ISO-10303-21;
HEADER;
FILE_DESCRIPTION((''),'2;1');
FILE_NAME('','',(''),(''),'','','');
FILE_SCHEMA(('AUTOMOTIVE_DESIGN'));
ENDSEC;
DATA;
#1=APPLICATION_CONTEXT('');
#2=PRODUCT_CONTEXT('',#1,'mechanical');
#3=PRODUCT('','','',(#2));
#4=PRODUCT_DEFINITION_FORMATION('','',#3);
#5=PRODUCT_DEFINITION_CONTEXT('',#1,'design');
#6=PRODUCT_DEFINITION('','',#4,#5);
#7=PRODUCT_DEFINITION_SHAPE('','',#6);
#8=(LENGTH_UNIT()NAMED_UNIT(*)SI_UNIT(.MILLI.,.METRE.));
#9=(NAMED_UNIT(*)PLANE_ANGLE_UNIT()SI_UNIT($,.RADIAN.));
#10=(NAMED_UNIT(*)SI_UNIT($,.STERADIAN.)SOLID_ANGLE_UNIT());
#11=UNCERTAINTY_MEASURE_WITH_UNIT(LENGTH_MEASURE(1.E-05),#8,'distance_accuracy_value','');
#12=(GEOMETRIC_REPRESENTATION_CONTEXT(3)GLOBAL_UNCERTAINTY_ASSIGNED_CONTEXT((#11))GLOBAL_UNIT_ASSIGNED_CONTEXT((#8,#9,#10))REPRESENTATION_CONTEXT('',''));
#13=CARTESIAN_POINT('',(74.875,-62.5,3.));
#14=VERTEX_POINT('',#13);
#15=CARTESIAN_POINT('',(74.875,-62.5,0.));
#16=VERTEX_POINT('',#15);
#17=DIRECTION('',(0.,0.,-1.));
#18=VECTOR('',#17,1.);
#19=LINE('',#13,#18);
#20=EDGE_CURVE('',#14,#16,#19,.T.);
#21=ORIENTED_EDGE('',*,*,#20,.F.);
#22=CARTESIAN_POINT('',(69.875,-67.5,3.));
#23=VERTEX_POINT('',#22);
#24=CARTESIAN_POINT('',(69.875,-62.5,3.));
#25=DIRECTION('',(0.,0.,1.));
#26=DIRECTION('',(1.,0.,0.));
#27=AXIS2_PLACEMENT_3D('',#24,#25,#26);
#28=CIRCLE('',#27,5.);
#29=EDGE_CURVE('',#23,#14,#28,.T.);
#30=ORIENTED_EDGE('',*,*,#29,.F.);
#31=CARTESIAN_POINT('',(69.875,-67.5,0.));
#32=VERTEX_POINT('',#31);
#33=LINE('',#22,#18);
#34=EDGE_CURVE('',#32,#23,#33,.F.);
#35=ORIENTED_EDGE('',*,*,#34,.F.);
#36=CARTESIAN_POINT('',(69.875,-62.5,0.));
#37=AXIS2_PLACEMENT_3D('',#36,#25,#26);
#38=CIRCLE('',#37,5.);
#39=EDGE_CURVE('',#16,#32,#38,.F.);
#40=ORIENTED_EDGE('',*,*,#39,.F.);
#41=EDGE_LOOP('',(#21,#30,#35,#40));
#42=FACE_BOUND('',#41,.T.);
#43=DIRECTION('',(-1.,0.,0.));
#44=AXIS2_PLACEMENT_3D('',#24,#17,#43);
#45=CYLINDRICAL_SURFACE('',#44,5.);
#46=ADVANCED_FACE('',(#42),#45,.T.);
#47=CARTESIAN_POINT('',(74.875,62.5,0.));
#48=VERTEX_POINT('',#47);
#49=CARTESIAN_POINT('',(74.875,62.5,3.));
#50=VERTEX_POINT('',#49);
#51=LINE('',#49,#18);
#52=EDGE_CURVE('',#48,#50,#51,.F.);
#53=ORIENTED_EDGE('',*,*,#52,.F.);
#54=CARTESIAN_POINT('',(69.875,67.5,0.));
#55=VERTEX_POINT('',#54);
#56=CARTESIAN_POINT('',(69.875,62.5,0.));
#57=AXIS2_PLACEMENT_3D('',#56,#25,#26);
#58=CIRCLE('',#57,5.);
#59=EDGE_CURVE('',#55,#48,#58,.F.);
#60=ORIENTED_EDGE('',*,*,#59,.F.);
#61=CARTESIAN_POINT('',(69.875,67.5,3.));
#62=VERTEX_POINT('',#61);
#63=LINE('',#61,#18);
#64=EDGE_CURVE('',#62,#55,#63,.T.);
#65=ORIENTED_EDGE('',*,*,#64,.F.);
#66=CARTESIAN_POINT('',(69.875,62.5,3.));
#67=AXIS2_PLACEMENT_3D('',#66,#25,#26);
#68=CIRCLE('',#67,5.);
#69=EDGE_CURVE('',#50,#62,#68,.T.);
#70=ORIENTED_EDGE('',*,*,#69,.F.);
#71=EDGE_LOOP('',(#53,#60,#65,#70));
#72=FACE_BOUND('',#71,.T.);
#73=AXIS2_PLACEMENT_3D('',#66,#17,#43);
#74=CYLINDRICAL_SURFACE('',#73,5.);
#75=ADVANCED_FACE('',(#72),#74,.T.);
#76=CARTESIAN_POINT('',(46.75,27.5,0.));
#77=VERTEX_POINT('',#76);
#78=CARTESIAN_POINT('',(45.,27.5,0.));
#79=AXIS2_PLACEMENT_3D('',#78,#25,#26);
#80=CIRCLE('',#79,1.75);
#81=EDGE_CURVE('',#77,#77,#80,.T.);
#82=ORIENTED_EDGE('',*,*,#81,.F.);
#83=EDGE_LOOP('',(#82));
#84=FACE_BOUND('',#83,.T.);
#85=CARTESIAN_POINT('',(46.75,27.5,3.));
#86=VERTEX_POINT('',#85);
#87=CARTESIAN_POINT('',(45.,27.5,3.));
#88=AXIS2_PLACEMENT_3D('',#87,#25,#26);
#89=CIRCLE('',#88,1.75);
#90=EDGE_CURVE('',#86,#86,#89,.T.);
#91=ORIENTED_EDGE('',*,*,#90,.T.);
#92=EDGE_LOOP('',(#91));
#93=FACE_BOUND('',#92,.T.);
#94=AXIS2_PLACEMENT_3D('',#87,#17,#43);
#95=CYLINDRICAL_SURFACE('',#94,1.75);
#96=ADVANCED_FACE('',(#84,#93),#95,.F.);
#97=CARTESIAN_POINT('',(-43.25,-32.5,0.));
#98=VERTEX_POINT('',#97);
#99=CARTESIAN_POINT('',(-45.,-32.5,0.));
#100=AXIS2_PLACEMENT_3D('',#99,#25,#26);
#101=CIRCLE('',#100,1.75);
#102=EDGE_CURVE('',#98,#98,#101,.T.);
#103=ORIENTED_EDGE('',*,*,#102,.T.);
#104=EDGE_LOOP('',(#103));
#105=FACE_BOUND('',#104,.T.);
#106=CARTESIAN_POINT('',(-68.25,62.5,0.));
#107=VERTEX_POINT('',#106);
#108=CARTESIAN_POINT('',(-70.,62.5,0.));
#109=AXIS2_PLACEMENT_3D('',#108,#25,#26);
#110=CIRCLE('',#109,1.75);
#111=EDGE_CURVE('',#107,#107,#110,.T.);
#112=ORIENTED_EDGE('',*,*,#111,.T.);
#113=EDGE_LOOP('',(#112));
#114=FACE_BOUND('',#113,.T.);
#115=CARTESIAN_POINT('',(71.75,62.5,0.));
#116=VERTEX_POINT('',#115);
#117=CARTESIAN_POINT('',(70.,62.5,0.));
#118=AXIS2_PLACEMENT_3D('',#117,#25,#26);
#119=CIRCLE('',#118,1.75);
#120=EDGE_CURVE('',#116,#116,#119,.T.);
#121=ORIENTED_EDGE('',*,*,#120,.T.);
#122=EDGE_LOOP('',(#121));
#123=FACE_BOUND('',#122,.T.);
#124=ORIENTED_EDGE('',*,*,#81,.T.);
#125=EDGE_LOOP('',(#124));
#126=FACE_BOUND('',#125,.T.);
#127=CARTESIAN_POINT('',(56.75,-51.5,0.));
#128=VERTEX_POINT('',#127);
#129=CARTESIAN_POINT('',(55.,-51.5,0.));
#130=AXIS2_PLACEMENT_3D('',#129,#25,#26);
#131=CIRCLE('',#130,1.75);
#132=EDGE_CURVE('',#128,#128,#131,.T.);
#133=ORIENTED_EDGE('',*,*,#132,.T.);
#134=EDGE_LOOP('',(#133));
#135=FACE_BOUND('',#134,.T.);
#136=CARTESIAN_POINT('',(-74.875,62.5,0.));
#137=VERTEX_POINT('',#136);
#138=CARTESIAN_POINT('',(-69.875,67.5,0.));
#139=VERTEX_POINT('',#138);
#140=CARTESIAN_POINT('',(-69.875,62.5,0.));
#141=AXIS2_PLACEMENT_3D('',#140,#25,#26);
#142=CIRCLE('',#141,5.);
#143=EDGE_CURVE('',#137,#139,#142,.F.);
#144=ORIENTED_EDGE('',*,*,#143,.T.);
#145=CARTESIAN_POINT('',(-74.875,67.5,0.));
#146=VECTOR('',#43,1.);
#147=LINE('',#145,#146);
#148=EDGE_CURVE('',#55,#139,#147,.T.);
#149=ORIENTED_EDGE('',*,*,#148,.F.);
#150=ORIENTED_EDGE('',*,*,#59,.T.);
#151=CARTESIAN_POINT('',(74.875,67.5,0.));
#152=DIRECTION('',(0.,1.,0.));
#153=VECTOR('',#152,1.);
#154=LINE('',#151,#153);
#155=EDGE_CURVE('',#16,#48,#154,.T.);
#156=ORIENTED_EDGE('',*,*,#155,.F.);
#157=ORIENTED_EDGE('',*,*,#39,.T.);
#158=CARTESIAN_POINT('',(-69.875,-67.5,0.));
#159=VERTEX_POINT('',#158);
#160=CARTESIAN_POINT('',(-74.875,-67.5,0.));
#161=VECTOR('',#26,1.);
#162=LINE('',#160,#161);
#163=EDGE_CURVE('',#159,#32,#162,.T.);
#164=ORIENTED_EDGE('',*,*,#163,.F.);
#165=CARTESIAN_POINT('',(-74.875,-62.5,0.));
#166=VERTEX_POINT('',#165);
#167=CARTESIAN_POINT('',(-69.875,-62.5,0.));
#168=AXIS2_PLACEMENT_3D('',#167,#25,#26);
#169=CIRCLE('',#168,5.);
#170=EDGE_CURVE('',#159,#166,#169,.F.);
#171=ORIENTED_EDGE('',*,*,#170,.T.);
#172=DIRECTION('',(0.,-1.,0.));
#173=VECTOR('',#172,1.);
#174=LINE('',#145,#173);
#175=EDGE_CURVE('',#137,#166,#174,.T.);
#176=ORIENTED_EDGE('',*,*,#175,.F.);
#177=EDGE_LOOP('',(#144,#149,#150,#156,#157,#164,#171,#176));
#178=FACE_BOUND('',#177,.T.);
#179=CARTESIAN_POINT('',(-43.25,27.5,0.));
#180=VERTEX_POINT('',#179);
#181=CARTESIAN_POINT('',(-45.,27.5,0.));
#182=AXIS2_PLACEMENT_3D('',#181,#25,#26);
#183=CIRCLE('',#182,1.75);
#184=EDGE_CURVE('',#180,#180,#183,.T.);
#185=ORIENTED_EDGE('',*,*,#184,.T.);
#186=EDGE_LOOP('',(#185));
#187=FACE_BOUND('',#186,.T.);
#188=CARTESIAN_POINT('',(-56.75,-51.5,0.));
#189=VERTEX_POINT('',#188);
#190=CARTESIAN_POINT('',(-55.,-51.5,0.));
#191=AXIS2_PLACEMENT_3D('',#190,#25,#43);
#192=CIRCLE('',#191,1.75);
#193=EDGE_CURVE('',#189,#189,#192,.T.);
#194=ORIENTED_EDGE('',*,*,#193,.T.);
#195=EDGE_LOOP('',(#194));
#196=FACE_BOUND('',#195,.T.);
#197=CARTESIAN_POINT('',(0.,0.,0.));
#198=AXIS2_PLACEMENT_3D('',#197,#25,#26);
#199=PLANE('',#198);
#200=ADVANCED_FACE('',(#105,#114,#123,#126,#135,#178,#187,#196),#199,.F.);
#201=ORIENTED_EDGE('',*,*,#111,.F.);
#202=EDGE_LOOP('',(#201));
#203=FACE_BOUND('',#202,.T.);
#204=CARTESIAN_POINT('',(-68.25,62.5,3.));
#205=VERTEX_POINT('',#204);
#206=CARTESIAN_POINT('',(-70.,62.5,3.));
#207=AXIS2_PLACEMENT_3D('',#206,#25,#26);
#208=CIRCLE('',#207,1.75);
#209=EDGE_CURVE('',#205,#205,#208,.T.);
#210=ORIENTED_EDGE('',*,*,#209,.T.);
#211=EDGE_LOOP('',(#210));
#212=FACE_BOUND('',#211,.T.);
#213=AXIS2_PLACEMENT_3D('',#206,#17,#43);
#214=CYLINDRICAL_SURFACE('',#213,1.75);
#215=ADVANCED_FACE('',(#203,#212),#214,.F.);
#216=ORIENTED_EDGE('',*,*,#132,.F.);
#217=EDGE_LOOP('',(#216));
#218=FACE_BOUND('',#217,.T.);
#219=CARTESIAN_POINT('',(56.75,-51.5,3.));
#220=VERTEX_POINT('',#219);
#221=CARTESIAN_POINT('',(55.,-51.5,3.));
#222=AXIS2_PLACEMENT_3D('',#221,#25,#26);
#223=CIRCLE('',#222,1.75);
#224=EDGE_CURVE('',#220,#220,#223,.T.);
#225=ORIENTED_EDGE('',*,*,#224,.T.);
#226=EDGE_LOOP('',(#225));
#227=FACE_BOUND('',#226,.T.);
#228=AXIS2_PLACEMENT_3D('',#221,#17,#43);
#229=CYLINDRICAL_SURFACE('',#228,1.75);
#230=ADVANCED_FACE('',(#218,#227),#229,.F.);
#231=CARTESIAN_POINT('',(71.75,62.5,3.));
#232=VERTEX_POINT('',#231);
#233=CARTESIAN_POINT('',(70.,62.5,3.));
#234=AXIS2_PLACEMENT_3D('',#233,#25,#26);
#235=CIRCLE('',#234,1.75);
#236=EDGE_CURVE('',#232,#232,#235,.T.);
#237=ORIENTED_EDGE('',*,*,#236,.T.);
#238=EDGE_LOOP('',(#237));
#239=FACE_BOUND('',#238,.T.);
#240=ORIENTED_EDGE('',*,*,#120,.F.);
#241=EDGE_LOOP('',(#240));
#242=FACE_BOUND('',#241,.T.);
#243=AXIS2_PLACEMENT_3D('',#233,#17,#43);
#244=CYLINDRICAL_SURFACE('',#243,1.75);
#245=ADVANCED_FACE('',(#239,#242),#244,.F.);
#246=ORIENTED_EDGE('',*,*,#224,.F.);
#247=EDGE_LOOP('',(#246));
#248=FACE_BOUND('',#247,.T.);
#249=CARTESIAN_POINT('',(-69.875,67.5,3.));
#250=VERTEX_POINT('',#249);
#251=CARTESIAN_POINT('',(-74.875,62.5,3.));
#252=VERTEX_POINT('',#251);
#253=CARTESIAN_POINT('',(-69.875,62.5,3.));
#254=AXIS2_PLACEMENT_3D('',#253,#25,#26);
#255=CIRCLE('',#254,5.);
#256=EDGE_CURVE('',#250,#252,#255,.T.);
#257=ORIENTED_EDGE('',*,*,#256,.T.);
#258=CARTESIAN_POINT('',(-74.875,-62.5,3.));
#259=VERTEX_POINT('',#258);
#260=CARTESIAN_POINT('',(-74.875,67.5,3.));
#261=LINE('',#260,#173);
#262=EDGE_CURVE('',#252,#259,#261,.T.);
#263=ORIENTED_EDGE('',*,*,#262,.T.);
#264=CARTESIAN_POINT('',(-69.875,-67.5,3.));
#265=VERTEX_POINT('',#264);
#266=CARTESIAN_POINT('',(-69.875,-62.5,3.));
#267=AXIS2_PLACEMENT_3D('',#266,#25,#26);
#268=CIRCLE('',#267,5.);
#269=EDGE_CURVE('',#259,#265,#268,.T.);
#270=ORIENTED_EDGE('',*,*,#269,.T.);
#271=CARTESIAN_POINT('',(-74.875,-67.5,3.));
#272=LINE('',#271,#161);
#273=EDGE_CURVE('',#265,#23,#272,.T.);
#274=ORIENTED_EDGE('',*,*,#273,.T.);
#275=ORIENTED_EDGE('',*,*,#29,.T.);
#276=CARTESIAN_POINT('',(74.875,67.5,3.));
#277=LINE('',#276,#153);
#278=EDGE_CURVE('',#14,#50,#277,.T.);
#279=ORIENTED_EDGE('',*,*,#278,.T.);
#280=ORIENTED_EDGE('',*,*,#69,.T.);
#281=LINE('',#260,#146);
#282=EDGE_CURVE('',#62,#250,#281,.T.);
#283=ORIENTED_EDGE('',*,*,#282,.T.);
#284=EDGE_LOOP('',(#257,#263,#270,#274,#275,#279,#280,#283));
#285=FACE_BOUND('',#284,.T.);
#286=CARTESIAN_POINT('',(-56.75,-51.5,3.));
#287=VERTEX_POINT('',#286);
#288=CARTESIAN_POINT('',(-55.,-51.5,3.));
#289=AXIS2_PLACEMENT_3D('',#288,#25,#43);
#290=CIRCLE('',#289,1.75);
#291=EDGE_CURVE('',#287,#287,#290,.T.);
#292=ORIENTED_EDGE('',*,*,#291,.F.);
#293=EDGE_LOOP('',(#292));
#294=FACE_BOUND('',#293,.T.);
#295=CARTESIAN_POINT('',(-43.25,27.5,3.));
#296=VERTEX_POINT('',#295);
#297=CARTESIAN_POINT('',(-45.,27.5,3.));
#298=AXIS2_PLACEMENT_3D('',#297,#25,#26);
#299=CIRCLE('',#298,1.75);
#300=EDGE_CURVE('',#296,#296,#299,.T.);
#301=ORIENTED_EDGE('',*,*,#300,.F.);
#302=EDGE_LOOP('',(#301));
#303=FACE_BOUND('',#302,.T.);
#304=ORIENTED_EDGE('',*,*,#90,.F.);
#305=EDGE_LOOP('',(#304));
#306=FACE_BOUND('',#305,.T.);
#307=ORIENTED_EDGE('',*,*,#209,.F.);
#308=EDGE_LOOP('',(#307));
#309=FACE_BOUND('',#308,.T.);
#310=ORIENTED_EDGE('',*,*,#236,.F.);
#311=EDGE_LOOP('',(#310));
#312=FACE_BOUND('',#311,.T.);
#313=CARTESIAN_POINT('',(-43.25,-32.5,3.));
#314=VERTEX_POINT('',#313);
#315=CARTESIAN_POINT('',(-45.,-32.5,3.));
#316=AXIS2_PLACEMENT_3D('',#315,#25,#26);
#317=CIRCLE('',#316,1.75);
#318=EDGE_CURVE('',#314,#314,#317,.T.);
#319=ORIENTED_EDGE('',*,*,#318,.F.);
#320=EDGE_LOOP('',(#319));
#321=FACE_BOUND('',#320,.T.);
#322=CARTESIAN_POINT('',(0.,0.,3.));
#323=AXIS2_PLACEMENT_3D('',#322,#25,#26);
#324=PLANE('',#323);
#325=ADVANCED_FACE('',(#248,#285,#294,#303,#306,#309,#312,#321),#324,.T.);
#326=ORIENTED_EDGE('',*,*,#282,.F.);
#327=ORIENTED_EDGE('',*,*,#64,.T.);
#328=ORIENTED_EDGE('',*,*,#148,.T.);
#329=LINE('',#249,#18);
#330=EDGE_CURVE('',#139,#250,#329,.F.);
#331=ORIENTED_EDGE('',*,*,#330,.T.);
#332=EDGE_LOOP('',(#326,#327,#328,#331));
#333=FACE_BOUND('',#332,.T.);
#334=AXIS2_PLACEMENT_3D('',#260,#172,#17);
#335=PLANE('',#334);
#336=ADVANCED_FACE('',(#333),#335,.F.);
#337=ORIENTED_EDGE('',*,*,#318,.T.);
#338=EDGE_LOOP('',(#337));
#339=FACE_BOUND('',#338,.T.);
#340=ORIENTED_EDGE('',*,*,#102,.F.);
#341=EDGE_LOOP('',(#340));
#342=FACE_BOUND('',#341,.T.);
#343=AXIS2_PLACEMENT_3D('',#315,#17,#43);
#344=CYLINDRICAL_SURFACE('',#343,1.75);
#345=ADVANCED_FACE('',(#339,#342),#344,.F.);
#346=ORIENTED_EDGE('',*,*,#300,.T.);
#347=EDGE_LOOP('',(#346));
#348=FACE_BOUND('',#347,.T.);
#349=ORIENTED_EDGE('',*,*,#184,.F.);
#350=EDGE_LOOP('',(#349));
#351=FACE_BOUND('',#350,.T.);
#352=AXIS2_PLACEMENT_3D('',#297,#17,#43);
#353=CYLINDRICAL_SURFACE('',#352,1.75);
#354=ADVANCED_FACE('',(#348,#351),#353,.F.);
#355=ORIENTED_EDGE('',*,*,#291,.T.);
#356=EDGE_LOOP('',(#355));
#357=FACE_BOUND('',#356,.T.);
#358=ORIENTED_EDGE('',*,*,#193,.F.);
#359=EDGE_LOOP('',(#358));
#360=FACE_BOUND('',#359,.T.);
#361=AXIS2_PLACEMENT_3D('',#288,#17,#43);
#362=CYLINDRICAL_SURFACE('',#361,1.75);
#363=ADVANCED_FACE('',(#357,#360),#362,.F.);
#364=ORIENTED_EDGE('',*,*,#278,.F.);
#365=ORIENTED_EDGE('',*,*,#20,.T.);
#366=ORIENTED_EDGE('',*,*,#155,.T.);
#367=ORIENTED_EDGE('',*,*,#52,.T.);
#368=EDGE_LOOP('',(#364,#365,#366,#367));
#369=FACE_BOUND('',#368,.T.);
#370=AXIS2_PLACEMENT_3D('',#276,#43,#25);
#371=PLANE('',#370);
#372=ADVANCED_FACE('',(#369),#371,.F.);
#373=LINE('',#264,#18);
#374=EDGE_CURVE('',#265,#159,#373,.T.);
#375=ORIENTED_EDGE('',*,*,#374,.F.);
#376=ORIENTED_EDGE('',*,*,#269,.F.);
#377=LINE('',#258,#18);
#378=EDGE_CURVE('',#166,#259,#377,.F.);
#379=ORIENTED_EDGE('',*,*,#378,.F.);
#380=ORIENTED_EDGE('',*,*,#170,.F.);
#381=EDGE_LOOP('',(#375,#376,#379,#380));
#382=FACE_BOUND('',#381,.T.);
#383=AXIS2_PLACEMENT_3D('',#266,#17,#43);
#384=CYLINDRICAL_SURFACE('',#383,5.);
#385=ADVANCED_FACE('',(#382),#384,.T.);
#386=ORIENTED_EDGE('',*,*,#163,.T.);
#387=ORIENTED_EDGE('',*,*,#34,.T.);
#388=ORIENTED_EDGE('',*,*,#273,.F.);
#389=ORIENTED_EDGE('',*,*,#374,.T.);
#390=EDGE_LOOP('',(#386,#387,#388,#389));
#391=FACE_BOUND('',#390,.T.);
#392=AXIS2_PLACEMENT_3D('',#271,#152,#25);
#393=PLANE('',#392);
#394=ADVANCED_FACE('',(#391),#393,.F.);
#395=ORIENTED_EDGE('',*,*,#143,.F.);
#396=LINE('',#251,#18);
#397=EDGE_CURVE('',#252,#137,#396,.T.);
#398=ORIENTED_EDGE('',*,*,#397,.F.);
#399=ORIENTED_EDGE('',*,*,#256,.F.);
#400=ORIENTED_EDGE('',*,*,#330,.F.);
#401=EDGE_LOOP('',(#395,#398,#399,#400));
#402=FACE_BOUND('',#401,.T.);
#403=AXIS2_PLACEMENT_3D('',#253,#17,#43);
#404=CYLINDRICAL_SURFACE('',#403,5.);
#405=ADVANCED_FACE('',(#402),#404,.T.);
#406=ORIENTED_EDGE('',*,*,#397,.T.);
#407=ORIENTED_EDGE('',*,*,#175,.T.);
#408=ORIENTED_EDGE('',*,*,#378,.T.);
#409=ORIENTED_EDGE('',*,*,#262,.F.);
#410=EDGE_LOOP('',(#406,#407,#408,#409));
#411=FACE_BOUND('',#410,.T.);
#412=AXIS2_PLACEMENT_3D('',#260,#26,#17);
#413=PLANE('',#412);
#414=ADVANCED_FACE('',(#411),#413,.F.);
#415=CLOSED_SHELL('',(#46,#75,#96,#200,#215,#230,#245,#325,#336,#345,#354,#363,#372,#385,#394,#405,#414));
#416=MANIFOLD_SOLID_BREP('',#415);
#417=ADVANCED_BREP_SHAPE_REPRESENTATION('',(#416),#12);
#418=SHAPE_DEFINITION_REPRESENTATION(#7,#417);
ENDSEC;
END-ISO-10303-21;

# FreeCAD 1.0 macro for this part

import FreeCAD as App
import Part
import Sketcher
Q = App.Units.Quantity


def edges_at(feature, points):
    """Names of the edges that pass closest to the given points."""
    edges = feature.Shape.Edges
    near = lambda p: min(range(len(edges)), key=lambda i: edges[i].distToShape(Part.Vertex(*p))[0])
    return sorted({f"Edge{near(p) + 1}" for p in points})

doc = App.newDocument("Part")
body = doc.addObject("PartDesign::Body", "Body")

# Sketch on XY plane
sketch1 = body.newObject("Sketcher::SketchObject", "Sketch")
sketch1.AttachmentSupport = (doc.getObject("XY_Plane"), [""])
sketch1.MapMode = "FlatFace"
sketch1.addGeometry([
    Part.LineSegment(App.Vector(-74.875, 67.5, 0), App.Vector(-74.875, -67.5, 0)),  # 0
    Part.LineSegment(App.Vector(-74.875, -67.5, 0), App.Vector(74.875, -67.5, 0)),  # 1
    Part.LineSegment(App.Vector(74.875, -67.5, 0), App.Vector(74.875, 67.5, 0)),  # 2
    Part.LineSegment(App.Vector(74.875, 67.5, 0), App.Vector(-74.875, 67.5, 0)),  # 3
    Part.Circle(App.Vector(-55, -51.5, 0), App.Vector(0, 0, 1), 1.75),  # 4
    Part.Circle(App.Vector(-45, -32.5, 0), App.Vector(0, 0, 1), 1.75),  # 5
    Part.Circle(App.Vector(55, -51.5, 0), App.Vector(0, 0, 1), 1.75),  # 6
    Part.Circle(App.Vector(-45, 27.5, 0), App.Vector(0, 0, 1), 1.75),  # 7
    Part.Circle(App.Vector(-70, 62.5, 0), App.Vector(0, 0, 1), 1.75),  # 8
    Part.Circle(App.Vector(45, 27.5, 0), App.Vector(0, 0, 1), 1.75),  # 9
    Part.Circle(App.Vector(70, 62.5, 0), App.Vector(0, 0, 1), 1.75),  # 10
], False)
sketch1.addConstraint([
    Sketcher.Constraint("Coincident", 0, 2, 1, 1),
    Sketcher.Constraint("Coincident", 1, 2, 2, 1),
    Sketcher.Constraint("Coincident", 2, 2, 3, 1),
    Sketcher.Constraint("Coincident", 3, 2, 0, 1),
    Sketcher.Constraint("Vertical", 0),
    Sketcher.Constraint("Horizontal", 1),
    Sketcher.Constraint("Vertical", 2),
    Sketcher.Constraint("Horizontal", 3),
    Sketcher.Constraint("Equal", 4, 5),
    Sketcher.Constraint("Equal", 5, 6),
    Sketcher.Constraint("Equal", 6, 7),
    Sketcher.Constraint("Equal", 7, 8),
    Sketcher.Constraint("Equal", 8, 9),
    Sketcher.Constraint("Equal", 9, 10),
    Sketcher.Constraint("Symmetric", 0, 2, 2, 2, -1, 1),
    Sketcher.Constraint("Symmetric", 4, 3, 6, 3, -2),
    Sketcher.Constraint("Symmetric", 7, 3, 9, 3, -2),
    Sketcher.Constraint("Symmetric", 8, 3, 10, 3, -2),
    Sketcher.Constraint("Vertical", 5, 3, 7, 3),
    Sketcher.Constraint("Diameter", 4, Q("3.5 mm")),
    Sketcher.Constraint("DistanceY", 0, 2, 0, 1, Q("135 mm")),
    Sketcher.Constraint("DistanceX", 4, 3, -1, 1, Q("55 mm")),
    Sketcher.Constraint("DistanceX", 5, 3, -1, 1, Q("45 mm")),
    Sketcher.Constraint("DistanceX", 8, 3, -1, 1, Q("70 mm")),
    Sketcher.Constraint("DistanceY", 4, 3, 5, 3, Q("19 mm")),
    Sketcher.Constraint("DistanceY", 5, 3, 7, 3, Q("60 mm")),
    Sketcher.Constraint("DistanceY", 7, 3, 8, 3, Q("35 mm")),
    Sketcher.Constraint("DistanceY", 0, 2, 4, 3, Q("16 mm")),
    Sketcher.Constraint("DistanceX", 1, 1, 1, 2, Q("149.75 mm")),
])
pad1 = body.newObject("PartDesign::Pad", "Pad")
pad1.Profile = sketch1
pad1.Length = 3
doc.recompute()

fillet = body.newObject("PartDesign::Fillet", "Fillet")
fillet.Base = (pad1, edges_at(pad1, [
    (-74.875, 67.5, 1.5),
    (74.875, 67.5, 1.5),
    (74.875, -67.5, 1.5),
    (-74.875, -67.5, 1.5),
]))
fillet.Radius = 5

doc.recompute()
